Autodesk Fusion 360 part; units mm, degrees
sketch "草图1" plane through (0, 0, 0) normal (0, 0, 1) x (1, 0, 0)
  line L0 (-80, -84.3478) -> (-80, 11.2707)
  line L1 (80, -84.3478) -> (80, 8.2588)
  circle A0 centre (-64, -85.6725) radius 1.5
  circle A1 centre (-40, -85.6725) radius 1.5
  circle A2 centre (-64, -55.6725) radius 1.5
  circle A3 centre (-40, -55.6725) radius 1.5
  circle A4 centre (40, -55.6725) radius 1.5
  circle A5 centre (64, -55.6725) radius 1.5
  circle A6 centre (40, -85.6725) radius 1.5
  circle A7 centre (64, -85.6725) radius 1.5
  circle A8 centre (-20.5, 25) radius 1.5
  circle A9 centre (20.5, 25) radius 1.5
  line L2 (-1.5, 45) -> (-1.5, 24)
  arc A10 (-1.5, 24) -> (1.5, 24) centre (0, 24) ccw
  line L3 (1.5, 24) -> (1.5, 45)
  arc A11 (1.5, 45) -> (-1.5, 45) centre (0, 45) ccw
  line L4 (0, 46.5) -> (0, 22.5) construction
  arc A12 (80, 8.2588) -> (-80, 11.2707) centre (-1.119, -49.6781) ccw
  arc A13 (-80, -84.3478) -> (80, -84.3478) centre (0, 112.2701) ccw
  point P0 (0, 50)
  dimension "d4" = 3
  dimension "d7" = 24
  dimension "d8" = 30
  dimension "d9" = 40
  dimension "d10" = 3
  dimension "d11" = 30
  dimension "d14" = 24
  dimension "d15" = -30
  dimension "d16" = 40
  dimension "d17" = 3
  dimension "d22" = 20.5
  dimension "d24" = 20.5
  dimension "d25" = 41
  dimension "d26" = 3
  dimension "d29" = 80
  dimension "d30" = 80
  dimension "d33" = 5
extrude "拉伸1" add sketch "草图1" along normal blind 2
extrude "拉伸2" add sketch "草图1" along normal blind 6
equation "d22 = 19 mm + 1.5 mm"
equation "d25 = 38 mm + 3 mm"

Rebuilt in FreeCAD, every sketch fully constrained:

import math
import FreeCAD as App
import Part
import Sketcher

V = App.Vector
Q = App.Units.Quantity

doc = App.newDocument("Part")
body = doc.addObject("PartDesign::Body", "Body")

sketch1 = doc.addObject("Sketcher::SketchObject", "Sketch")
body.addObject(sketch1)
sketch1.AttachmentSupport = (doc.XY_Plane, [""])
sketch1.MapMode = "FlatFace"
sketch1.addGeometry([
    Part.LineSegment(V(-80, 11.3, 0), V(-80, -84.3, 0)),
    Part.ArcOfCircle(Part.Circle(V(0, 112.3, 0), V(0, 0, 1), 212.3), math.radians(-112), math.radians(-68)),
    Part.LineSegment(V(80, -84.3, 0), V(80, 8.3, 0)),
    Part.ArcOfCircle(Part.Circle(V(-1.1, -49.7, 0), V(0, 0, 1), 99.7), math.radians(36), math.radians(142)),
    Part.Circle(V(-64, -85.7, 0), V(0, 0, 1), 1.5),
    Part.Circle(V(-40, -85.7, 0), V(0, 0, 1), 1.5),
    Part.Circle(V(-64, -55.7, 0), V(0, 0, 1), 1.5),
    Part.Circle(V(-40, -55.7, 0), V(0, 0, 1), 1.5),
    Part.Circle(V(40, -85.7, 0), V(0, 0, 1), 1.5),
    Part.Circle(V(64, -85.7, 0), V(0, 0, 1), 1.5),
    Part.Circle(V(40, -55.7, 0), V(0, 0, 1), 1.5),
    Part.Circle(V(64, -55.7, 0), V(0, 0, 1), 1.5),
    Part.Circle(V(-20.5, 25, 0), V(0, 0, 1), 1.5),
    Part.Circle(V(20.5, 25, 0), V(0, 0, 1), 1.5),
    Part.LineSegment(V(-1.5, 24, 0), V(-1.5, 45, 0)),
    Part.ArcOfCircle(Part.Circle(V(0, 45, 0), V(0, 0, 1), 1.5), math.radians(0), math.radians(180)),
    Part.LineSegment(V(1.5, 45, 0), V(1.5, 24, 0)),
    Part.ArcOfCircle(Part.Circle(V(0, 24, 0), V(0, 0, 1), 1.5), math.radians(180), math.radians(360)),
], False)
sketch1.addConstraint([
    Sketcher.Constraint("Coincident", 0, 2, 1, 1),
    Sketcher.Constraint("Coincident", 1, 2, 2, 1),
    Sketcher.Constraint("Coincident", 2, 2, 3, 1),
    Sketcher.Constraint("Coincident", 3, 2, 0, 1),
    Sketcher.Constraint("Tangent", 14, 2, 15, 2),
    Sketcher.Constraint("Tangent", 15, 1, 16, 1),
    Sketcher.Constraint("Tangent", 16, 2, 17, 2),
    Sketcher.Constraint("Tangent", 17, 1, 14, 1),
    Sketcher.Constraint("Vertical", 0),
    Sketcher.Constraint("Vertical", 2),
    Sketcher.Constraint("Vertical", 14),
    Sketcher.Constraint("Vertical", 16),
    Sketcher.Constraint("Equal", 4, 5),
    Sketcher.Constraint("Equal", 5, 6),
    Sketcher.Constraint("Equal", 6, 7),
    Sketcher.Constraint("Equal", 7, 8),
    Sketcher.Constraint("Equal", 8, 9),
    Sketcher.Constraint("Equal", 9, 10),
    Sketcher.Constraint("Equal", 10, 11),
    Sketcher.Constraint("Equal", 11, 12),
    Sketcher.Constraint("Equal", 12, 13),
    Sketcher.Constraint("Equal", 13, 15),
    Sketcher.Constraint("Symmetric", 5, 3, 8, 3, -2),
    Sketcher.Constraint("Symmetric", 4, 3, 9, 3, -2),
    Sketcher.Constraint("Symmetric", 7, 3, 10, 3, -2),
    Sketcher.Constraint("Symmetric", 6, 3, 11, 3, -2),
    Sketcher.Constraint("Symmetric", 12, 3, 13, 3, -2),
    Sketcher.Constraint("Symmetric", 0, 2, 1, 2, -2),
    Sketcher.Constraint("PointOnObject", 15, 3, -2),
    Sketcher.Constraint("Horizontal", 4, 3, 5, 3),
    Sketcher.Constraint("Horizontal", 6, 3, 7, 3),
    Sketcher.Constraint("Vertical", 4, 3, 6, 3),
    Sketcher.Constraint("Vertical", 5, 3, 7, 3),
    Sketcher.Constraint("Diameter", 4, Q("3 mm")),
    Sketcher.Constraint("DistanceX", 5, 3, -1, 1, Q("40 mm")),
    Sketcher.Constraint("DistanceY", -1, 1, 17, 3, Q("24 mm")),
    Sketcher.Constraint("DistanceX", 0, 2, -1, 1, Q("80 mm")),
    Sketcher.Constraint("DistanceX", 4, 3, 5, 3, Q("24 mm")),
    Sketcher.Constraint("DistanceY", 4, 3, 6, 3, Q("30 mm")),
    Sketcher.Constraint("DistanceX", 12, 3, 13, 3, Q("41 mm")),
    Sketcher.Constraint("DistanceY", 14, 1, 14, 2, Q("21 mm")),
    Sketcher.Constraint("Radius", 1, Q("212.27 mm")),
    Sketcher.Constraint("DistanceY", -1, 1, 12, 3, Q("25 mm")),
    Sketcher.Constraint("Radius", 3, Q("99.6844 mm")),
    Sketcher.Constraint("DistanceY", -1, 1, 1, 3, Q("112.27 mm")),
    Sketcher.Constraint("DistanceY", 0, 2, 0, 1, Q("95.6185 mm")),
    Sketcher.Constraint("DistanceY", 2, 1, 2, 2, Q("92.6066 mm")),
    Sketcher.Constraint("DistanceY", 4, 3, -1, 1, Q("85.6725 mm")),
])
pad1 = doc.addObject("PartDesign::Pad", "Pad")
body.addObject(pad1)
pad1.Profile = sketch1
pad1.Length = 2

sketch2 = doc.addObject("Sketcher::SketchObject", "Sketch001")
body.addObject(sketch2)
sketch2.AttachmentSupport = (doc.XY_Plane, [""])
sketch2.MapMode = "FlatFace"
sketch2.addGeometry([
    Part.LineSegment(V(-80, 11.3, 0), V(-80, -84.3, 0)),
    Part.ArcOfCircle(Part.Circle(V(0, 112.3, 0), V(0, 0, 1), 212.3), math.radians(-112), math.radians(-68)),
    Part.LineSegment(V(80, -84.3, 0), V(80, 8.3, 0)),
    Part.ArcOfCircle(Part.Circle(V(-1.1, -49.7, 0), V(0, 0, 1), 99.7), math.radians(36), math.radians(142)),
    Part.Circle(V(-64, -85.7, 0), V(0, 0, 1), 1.5),
    Part.Circle(V(-40, -85.7, 0), V(0, 0, 1), 1.5),
    Part.Circle(V(-64, -55.7, 0), V(0, 0, 1), 1.5),
    Part.Circle(V(-40, -55.7, 0), V(0, 0, 1), 1.5),
    Part.Circle(V(40, -85.7, 0), V(0, 0, 1), 1.5),
    Part.Circle(V(64, -85.7, 0), V(0, 0, 1), 1.5),
    Part.Circle(V(40, -55.7, 0), V(0, 0, 1), 1.5),
    Part.Circle(V(64, -55.7, 0), V(0, 0, 1), 1.5),
    Part.Circle(V(-20.5, 25, 0), V(0, 0, 1), 1.5),
    Part.Circle(V(20.5, 25, 0), V(0, 0, 1), 1.5),
    Part.LineSegment(V(-1.5, 24, 0), V(-1.5, 45, 0)),
    Part.ArcOfCircle(Part.Circle(V(0, 45, 0), V(0, 0, 1), 1.5), math.radians(0), math.radians(180)),
    Part.LineSegment(V(1.5, 45, 0), V(1.5, 24, 0)),
    Part.ArcOfCircle(Part.Circle(V(0, 24, 0), V(0, 0, 1), 1.5), math.radians(180), math.radians(360)),
], False)
sketch2.addConstraint([
    Sketcher.Constraint("Coincident", 0, 2, 1, 1),
    Sketcher.Constraint("Coincident", 1, 2, 2, 1),
    Sketcher.Constraint("Coincident", 2, 2, 3, 1),
    Sketcher.Constraint("Coincident", 3, 2, 0, 1),
    Sketcher.Constraint("Tangent", 14, 2, 15, 2),
    Sketcher.Constraint("Tangent", 15, 1, 16, 1),
    Sketcher.Constraint("Tangent", 16, 2, 17, 2),
    Sketcher.Constraint("Tangent", 17, 1, 14, 1),
    Sketcher.Constraint("Vertical", 0),
    Sketcher.Constraint("Vertical", 2),
    Sketcher.Constraint("Vertical", 14),
    Sketcher.Constraint("Vertical", 16),
    Sketcher.Constraint("Equal", 4, 5),
    Sketcher.Constraint("Equal", 5, 6),
    Sketcher.Constraint("Equal", 6, 7),
    Sketcher.Constraint("Equal", 7, 8),
    Sketcher.Constraint("Equal", 8, 9),
    Sketcher.Constraint("Equal", 9, 10),
    Sketcher.Constraint("Equal", 10, 11),
    Sketcher.Constraint("Equal", 11, 12),
    Sketcher.Constraint("Equal", 12, 13),
    Sketcher.Constraint("Equal", 13, 15),
    Sketcher.Constraint("Symmetric", 5, 3, 8, 3, -2),
    Sketcher.Constraint("Symmetric", 4, 3, 9, 3, -2),
    Sketcher.Constraint("Symmetric", 7, 3, 10, 3, -2),
    Sketcher.Constraint("Symmetric", 6, 3, 11, 3, -2),
    Sketcher.Constraint("Symmetric", 12, 3, 13, 3, -2),
    Sketcher.Constraint("Symmetric", 0, 2, 1, 2, -2),
    Sketcher.Constraint("PointOnObject", 15, 3, -2),
    Sketcher.Constraint("Horizontal", 4, 3, 5, 3),
    Sketcher.Constraint("Horizontal", 6, 3, 7, 3),
    Sketcher.Constraint("Vertical", 4, 3, 6, 3),
    Sketcher.Constraint("Vertical", 5, 3, 7, 3),
    Sketcher.Constraint("Diameter", 4, Q("3 mm")),
    Sketcher.Constraint("DistanceX", 5, 3, -1, 1, Q("40 mm")),
    Sketcher.Constraint("DistanceY", -1, 1, 17, 3, Q("24 mm")),
    Sketcher.Constraint("DistanceX", 0, 2, -1, 1, Q("80 mm")),
    Sketcher.Constraint("DistanceX", 4, 3, 5, 3, Q("24 mm")),
    Sketcher.Constraint("DistanceY", 4, 3, 6, 3, Q("30 mm")),
    Sketcher.Constraint("DistanceX", 12, 3, 13, 3, Q("41 mm")),
    Sketcher.Constraint("DistanceY", 14, 1, 14, 2, Q("21 mm")),
    Sketcher.Constraint("Radius", 1, Q("212.27 mm")),
    Sketcher.Constraint("DistanceY", -1, 1, 12, 3, Q("25 mm")),
    Sketcher.Constraint("Radius", 3, Q("99.6844 mm")),
    Sketcher.Constraint("DistanceY", -1, 1, 1, 3, Q("112.27 mm")),
    Sketcher.Constraint("DistanceY", 0, 2, 0, 1, Q("95.6185 mm")),
    Sketcher.Constraint("DistanceY", 2, 1, 2, 2, Q("92.6066 mm")),
    Sketcher.Constraint("DistanceY", 4, 3, -1, 1, Q("85.6725 mm")),
])
pad2 = doc.addObject("PartDesign::Pad", "Pad001")
body.addObject(pad2)
pad2.Profile = sketch2
pad2.Length = 6

doc.recompute()
